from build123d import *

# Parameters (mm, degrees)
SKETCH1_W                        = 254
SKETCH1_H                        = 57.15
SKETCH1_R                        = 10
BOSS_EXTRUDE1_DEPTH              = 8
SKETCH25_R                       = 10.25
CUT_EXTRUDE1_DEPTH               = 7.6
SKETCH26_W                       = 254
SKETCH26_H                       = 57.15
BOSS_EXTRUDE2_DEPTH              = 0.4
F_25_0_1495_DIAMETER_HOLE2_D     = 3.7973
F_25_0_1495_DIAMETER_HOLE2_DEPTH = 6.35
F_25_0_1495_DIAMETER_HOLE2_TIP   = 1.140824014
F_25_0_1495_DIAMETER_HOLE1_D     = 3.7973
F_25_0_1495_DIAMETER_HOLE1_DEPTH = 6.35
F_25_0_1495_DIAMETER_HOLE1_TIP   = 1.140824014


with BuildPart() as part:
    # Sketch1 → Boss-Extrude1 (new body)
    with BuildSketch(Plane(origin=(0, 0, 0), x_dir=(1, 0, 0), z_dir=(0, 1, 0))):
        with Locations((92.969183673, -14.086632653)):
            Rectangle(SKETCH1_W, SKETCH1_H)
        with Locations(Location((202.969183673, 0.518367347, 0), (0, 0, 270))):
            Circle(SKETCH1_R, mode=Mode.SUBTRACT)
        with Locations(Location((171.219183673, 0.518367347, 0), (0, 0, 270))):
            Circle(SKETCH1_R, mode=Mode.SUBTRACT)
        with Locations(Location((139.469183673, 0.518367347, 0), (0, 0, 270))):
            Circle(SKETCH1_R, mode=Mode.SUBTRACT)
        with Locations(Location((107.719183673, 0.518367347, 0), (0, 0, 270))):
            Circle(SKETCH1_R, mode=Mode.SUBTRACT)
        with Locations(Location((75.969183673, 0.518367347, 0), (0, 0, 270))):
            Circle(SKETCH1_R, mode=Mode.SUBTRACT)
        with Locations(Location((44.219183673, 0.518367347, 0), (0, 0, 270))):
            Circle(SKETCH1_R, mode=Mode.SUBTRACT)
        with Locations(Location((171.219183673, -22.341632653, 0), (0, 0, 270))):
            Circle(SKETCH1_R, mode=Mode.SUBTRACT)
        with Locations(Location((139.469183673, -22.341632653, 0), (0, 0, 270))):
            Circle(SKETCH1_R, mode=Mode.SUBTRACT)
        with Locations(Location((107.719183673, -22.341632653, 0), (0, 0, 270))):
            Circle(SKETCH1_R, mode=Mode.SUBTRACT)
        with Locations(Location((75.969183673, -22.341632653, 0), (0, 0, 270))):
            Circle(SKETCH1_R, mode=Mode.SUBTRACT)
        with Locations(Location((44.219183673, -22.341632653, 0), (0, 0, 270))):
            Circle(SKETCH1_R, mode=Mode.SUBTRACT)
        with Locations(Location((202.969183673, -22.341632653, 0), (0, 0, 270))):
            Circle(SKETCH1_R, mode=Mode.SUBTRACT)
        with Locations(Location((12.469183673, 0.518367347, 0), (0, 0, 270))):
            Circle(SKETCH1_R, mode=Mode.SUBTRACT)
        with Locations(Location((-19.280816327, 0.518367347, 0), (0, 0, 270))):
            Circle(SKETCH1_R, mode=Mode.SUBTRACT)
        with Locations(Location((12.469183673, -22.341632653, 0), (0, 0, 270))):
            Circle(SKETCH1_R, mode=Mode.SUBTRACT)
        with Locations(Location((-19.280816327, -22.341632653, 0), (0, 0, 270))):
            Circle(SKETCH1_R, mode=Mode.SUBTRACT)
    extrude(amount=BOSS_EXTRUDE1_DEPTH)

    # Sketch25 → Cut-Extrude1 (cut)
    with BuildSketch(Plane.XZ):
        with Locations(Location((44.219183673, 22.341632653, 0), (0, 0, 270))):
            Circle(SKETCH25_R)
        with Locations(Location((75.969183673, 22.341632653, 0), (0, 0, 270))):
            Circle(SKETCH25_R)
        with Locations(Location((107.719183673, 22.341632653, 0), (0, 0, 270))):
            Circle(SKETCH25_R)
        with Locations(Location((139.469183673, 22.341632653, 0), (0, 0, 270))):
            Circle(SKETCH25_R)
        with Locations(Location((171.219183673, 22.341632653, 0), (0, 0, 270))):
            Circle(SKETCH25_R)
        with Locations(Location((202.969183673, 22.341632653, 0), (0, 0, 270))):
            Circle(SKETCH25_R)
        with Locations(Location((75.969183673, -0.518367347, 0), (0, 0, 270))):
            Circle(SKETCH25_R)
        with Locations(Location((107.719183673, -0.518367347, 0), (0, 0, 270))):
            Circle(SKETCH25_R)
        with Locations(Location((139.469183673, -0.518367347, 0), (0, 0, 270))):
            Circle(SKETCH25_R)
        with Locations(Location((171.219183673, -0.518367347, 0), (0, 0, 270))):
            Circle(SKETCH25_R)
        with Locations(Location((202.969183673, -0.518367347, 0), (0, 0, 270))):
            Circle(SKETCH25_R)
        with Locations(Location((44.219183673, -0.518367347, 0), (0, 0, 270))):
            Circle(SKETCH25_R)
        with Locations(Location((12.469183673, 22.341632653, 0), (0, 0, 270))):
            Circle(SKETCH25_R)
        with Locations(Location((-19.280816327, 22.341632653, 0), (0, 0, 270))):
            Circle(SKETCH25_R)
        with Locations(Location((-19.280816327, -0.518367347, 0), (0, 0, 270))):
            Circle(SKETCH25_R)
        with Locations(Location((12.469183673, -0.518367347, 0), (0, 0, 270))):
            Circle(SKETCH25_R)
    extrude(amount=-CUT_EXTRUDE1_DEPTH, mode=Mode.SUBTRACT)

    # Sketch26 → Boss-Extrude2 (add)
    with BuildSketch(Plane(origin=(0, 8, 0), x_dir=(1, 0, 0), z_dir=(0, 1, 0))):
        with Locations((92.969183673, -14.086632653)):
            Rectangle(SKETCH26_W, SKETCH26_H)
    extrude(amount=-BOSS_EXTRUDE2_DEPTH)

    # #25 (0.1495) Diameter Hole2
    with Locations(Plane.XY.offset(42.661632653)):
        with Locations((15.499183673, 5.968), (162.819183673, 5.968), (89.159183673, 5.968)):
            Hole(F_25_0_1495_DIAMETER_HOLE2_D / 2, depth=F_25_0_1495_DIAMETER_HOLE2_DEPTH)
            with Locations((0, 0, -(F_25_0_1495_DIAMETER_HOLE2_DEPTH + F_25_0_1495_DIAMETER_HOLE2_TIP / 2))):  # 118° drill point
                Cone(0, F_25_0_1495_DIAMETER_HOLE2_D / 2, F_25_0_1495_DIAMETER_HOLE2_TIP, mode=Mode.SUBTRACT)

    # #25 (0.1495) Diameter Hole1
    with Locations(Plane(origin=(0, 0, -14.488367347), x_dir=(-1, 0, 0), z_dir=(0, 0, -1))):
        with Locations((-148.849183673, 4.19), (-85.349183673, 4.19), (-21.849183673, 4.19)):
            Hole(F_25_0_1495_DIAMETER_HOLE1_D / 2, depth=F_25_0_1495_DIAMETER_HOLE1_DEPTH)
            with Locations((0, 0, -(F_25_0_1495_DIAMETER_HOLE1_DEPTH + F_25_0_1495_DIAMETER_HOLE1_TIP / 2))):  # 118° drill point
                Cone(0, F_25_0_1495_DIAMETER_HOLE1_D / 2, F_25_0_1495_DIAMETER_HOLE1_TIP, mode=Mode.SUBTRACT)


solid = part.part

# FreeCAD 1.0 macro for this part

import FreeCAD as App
import Part
import Sketcher

doc = App.newDocument("Part")
body = doc.addObject("PartDesign::Body", "Body")

sketch1 = body.newObject("Sketcher::SketchObject", "Sketch")
sketch1.AttachmentSupport = (doc.getObject("XZ_Plane"), [""])
sketch1.MapMode = "FlatFace"
sketch1.addGeometry([
    Part.LineSegment(App.Vector(-34, -14, 0), App.Vector(-34, 43, 0)),
    Part.LineSegment(App.Vector(-34, 43, 0), App.Vector(220, 43, 0)),
    Part.LineSegment(App.Vector(220, 43, 0), App.Vector(220, -14, 0)),
    Part.LineSegment(App.Vector(220, -14, 0), App.Vector(-34, -14, 0)),
    Part.Circle(App.Vector(-19, 22, 0), App.Vector(0, 0, 1), 10),
    Part.Circle(App.Vector(12, 22, 0), App.Vector(0, 0, 1), 10),
    Part.Circle(App.Vector(44, 22, 0), App.Vector(0, 0, 1), 10),
    Part.Circle(App.Vector(76, 22, 0), App.Vector(0, 0, 1), 10),
    Part.Circle(App.Vector(108, 22, 0), App.Vector(0, 0, 1), 10),
    Part.Circle(App.Vector(139, 22, 0), App.Vector(0, 0, 1), 10),
    Part.Circle(App.Vector(171, 22, 0), App.Vector(0, 0, 1), 10),
    Part.Circle(App.Vector(203, 22, 0), App.Vector(0, 0, 1), 10),
    Part.Circle(App.Vector(-19, -1, 0), App.Vector(0, 0, 1), 10),
    Part.Circle(App.Vector(12, -1, 0), App.Vector(0, 0, 1), 10),
    Part.Circle(App.Vector(44, -1, 0), App.Vector(0, 0, 1), 10),
    Part.Circle(App.Vector(76, -1, 0), App.Vector(0, 0, 1), 10),
    Part.Circle(App.Vector(108, -1, 0), App.Vector(0, 0, 1), 10),
    Part.Circle(App.Vector(139, -1, 0), App.Vector(0, 0, 1), 10),
    Part.Circle(App.Vector(171, -1, 0), App.Vector(0, 0, 1), 10),
    Part.Circle(App.Vector(203, -1, 0), App.Vector(0, 0, 1), 10),
], False)
sketch1.addConstraint([
    Sketcher.Constraint("Coincident", 0, 2, 1, 1),
    Sketcher.Constraint("Coincident", 1, 2, 2, 1),
    Sketcher.Constraint("Coincident", 2, 2, 3, 1),
    Sketcher.Constraint("Coincident", 3, 2, 0, 1),
    Sketcher.Constraint("Vertical", 0),
    Sketcher.Constraint("Horizontal", 1),
    Sketcher.Constraint("Vertical", 2),
    Sketcher.Constraint("Horizontal", 3),
    Sketcher.Constraint("Equal", 4, 5),
    Sketcher.Constraint("Equal", 5, 6),
    Sketcher.Constraint("Equal", 6, 7),
    Sketcher.Constraint("Equal", 7, 8),
    Sketcher.Constraint("Equal", 8, 9),
    Sketcher.Constraint("Equal", 9, 10),
    Sketcher.Constraint("Equal", 10, 11),
    Sketcher.Constraint("Equal", 11, 12),
    Sketcher.Constraint("Equal", 12, 13),
    Sketcher.Constraint("Equal", 13, 14),
    Sketcher.Constraint("Equal", 14, 15),
    Sketcher.Constraint("Equal", 15, 16),
    Sketcher.Constraint("Equal", 16, 17),
    Sketcher.Constraint("Equal", 17, 18),
    Sketcher.Constraint("Equal", 18, 19),
    Sketcher.Constraint("Horizontal", 4, 3, 5, 3),
    Sketcher.Constraint("Horizontal", 5, 3, 6, 3),
    Sketcher.Constraint("Horizontal", 6, 3, 7, 3),
    Sketcher.Constraint("Horizontal", 7, 3, 8, 3),
    Sketcher.Constraint("Horizontal", 8, 3, 9, 3),
    Sketcher.Constraint("Horizontal", 9, 3, 10, 3),
    Sketcher.Constraint("Horizontal", 10, 3, 11, 3),
    Sketcher.Constraint("Horizontal", 12, 3, 13, 3),
    Sketcher.Constraint("Horizontal", 13, 3, 14, 3),
    Sketcher.Constraint("Horizontal", 14, 3, 15, 3),
    Sketcher.Constraint("Horizontal", 15, 3, 16, 3),
    Sketcher.Constraint("Horizontal", 16, 3, 17, 3),
    Sketcher.Constraint("Horizontal", 17, 3, 18, 3),
    Sketcher.Constraint("Horizontal", 18, 3, 19, 3),
    Sketcher.Constraint("Vertical", 4, 3, 12, 3),
    Sketcher.Constraint("Vertical", 5, 3, 13, 3),
    Sketcher.Constraint("Vertical", 6, 3, 14, 3),
    Sketcher.Constraint("Vertical", 7, 3, 15, 3),
    Sketcher.Constraint("Vertical", 8, 3, 16, 3),
    Sketcher.Constraint("Vertical", 9, 3, 17, 3),
    Sketcher.Constraint("Vertical", 10, 3, 18, 3),
    Sketcher.Constraint("Vertical", 11, 3, 19, 3),
    Sketcher.Constraint("Diameter", 4, 20.0),
    Sketcher.Constraint("DistanceX", 1, 1, 1, 2, 254.0),
    Sketcher.Constraint("DistanceX", 4, 3, 8, 3, 127.0),
    Sketcher.Constraint("DistanceX", 5, 3, 9, 3, 127.0),
    Sketcher.Constraint("DistanceX", 6, 3, 10, 3, 127.0),
    Sketcher.Constraint("DistanceX", 7, 3, 11, 3, 127.0),
    Sketcher.Constraint("DistanceX", 11, 3, 1, 2, 17.0),
    Sketcher.Constraint("DistanceY", 0, 1, 0, 2, 57.15),
    Sketcher.Constraint("DistanceX", 4, 3, 6, 3, 63.5),
    Sketcher.Constraint("DistanceX", 5, 3, 7, 3, 63.5),
    Sketcher.Constraint("DistanceX", 4, 3, 5, 3, 31.75),
    Sketcher.Constraint("DistanceY", 12, 3, 4, 3, 22.86),
    Sketcher.Constraint("DistanceY", 4, 3, 0, 2, 20.32),
    Sketcher.Constraint("DistanceX", 4, 3, -1, 1, 19.280816),
    Sketcher.Constraint("DistanceY", -1, 1, 4, 3, 22.341633),
])
pad1 = body.newObject("PartDesign::Pad", "Pad")
pad1.Profile = sketch1
pad1.Length = 8
pad1.Reversed = True

sketch2 = body.newObject("Sketcher::SketchObject", "Sketch001")
sketch2.AttachmentSupport = (doc.getObject("XZ_Plane"), [""])
sketch2.MapMode = "FlatFace"
sketch2.addGeometry([
    Part.Circle(App.Vector(44, 22, 0), App.Vector(0, 0, 1), 10),
    Part.Circle(App.Vector(76, 22, 0), App.Vector(0, 0, 1), 10),
    Part.Circle(App.Vector(108, 22, 0), App.Vector(0, 0, 1), 10),
    Part.Circle(App.Vector(139, 22, 0), App.Vector(0, 0, 1), 10),
    Part.Circle(App.Vector(171, 22, 0), App.Vector(0, 0, 1), 10),
    Part.Circle(App.Vector(203, 22, 0), App.Vector(0, 0, 1), 10),
    Part.Circle(App.Vector(76, -1, 0), App.Vector(0, 0, 1), 10),
    Part.Circle(App.Vector(108, -1, 0), App.Vector(0, 0, 1), 10),
    Part.Circle(App.Vector(139, -1, 0), App.Vector(0, 0, 1), 10),
    Part.Circle(App.Vector(171, -1, 0), App.Vector(0, 0, 1), 10),
    Part.Circle(App.Vector(203, -1, 0), App.Vector(0, 0, 1), 10),
    Part.Circle(App.Vector(44, -1, 0), App.Vector(0, 0, 1), 10),
    Part.Circle(App.Vector(12, 22, 0), App.Vector(0, 0, 1), 10),
    Part.Circle(App.Vector(-19, 22, 0), App.Vector(0, 0, 1), 10),
    Part.Circle(App.Vector(-19, -1, 0), App.Vector(0, 0, 1), 10),
    Part.Circle(App.Vector(12, -1, 0), App.Vector(0, 0, 1), 10),
], False)
sketch2.addConstraint([
    Sketcher.Constraint("Equal", 0, 1),
    Sketcher.Constraint("Equal", 1, 2),
    Sketcher.Constraint("Equal", 2, 3),
    Sketcher.Constraint("Equal", 3, 4),
    Sketcher.Constraint("Equal", 4, 5),
    Sketcher.Constraint("Equal", 5, 6),
    Sketcher.Constraint("Equal", 6, 7),
    Sketcher.Constraint("Equal", 7, 8),
    Sketcher.Constraint("Equal", 8, 9),
    Sketcher.Constraint("Equal", 9, 10),
    Sketcher.Constraint("Equal", 10, 11),
    Sketcher.Constraint("Equal", 11, 12),
    Sketcher.Constraint("Equal", 12, 13),
    Sketcher.Constraint("Equal", 13, 14),
    Sketcher.Constraint("Equal", 14, 15),
    Sketcher.Constraint("Horizontal", 0, 3, 1, 3),
    Sketcher.Constraint("Horizontal", 1, 3, 2, 3),
    Sketcher.Constraint("Horizontal", 2, 3, 3, 3),
    Sketcher.Constraint("Horizontal", 3, 3, 4, 3),
    Sketcher.Constraint("Horizontal", 4, 3, 5, 3),
    Sketcher.Constraint("Horizontal", 6, 3, 7, 3),
    Sketcher.Constraint("Horizontal", 7, 3, 8, 3),
    Sketcher.Constraint("Horizontal", 8, 3, 9, 3),
    Sketcher.Constraint("Horizontal", 9, 3, 10, 3),
    Sketcher.Constraint("Horizontal", 10, 3, 11, 3),
    Sketcher.Constraint("Horizontal", 5, 3, 12, 3),
    Sketcher.Constraint("Horizontal", 12, 3, 13, 3),
    Sketcher.Constraint("Horizontal", 11, 3, 14, 3),
    Sketcher.Constraint("Horizontal", 14, 3, 15, 3),
    Sketcher.Constraint("Vertical", 1, 3, 6, 3),
    Sketcher.Constraint("Vertical", 2, 3, 7, 3),
    Sketcher.Constraint("Vertical", 3, 3, 8, 3),
    Sketcher.Constraint("Vertical", 4, 3, 9, 3),
    Sketcher.Constraint("Vertical", 5, 3, 10, 3),
    Sketcher.Constraint("Vertical", 0, 3, 11, 3),
    Sketcher.Constraint("Vertical", 13, 3, 14, 3),
    Sketcher.Constraint("Vertical", 12, 3, 15, 3),
    Sketcher.Constraint("Diameter", 0, 20.5),
    Sketcher.Constraint("DistanceX", 0, 3, 4, 3, 127.0),
    Sketcher.Constraint("DistanceX", 1, 3, 5, 3, 127.0),
    Sketcher.Constraint("DistanceX", 0, 3, 2, 3, 63.5),
    Sketcher.Constraint("DistanceX", 1, 3, 3, 3, 63.5),
    Sketcher.Constraint("DistanceX", 12, 3, 1, 3, 63.5),
    Sketcher.Constraint("DistanceX", 13, 3, 0, 3, 63.5),
    Sketcher.Constraint("DistanceX", 0, 3, 1, 3, 31.75),
    Sketcher.Constraint("DistanceY", 6, 3, 1, 3, 22.86),
    Sketcher.Constraint("DistanceX", -1, 1, 0, 3, 44.219184),
    Sketcher.Constraint("DistanceY", -1, 1, 0, 3, 22.341633),
])
pocket1 = body.newObject("PartDesign::Pocket", "Pocket")
pocket1.Profile = sketch2
pocket1.Length = 7.6

sketch3 = body.newObject("Sketcher::SketchObject", "Sketch002")
sketch3.AttachmentSupport = (doc.getObject("XZ_Plane"), [""])
sketch3.MapMode = "FlatFace"
sketch3.AttachmentOffset = App.Placement(App.Vector(0, 0, -8), App.Rotation())
sketch3.addGeometry([
    Part.LineSegment(App.Vector(-34, -14, 0), App.Vector(-34, 43, 0)),
    Part.LineSegment(App.Vector(-34, 43, 0), App.Vector(220, 43, 0)),
    Part.LineSegment(App.Vector(220, 43, 0), App.Vector(220, -14, 0)),
    Part.LineSegment(App.Vector(220, -14, 0), App.Vector(-34, -14, 0)),
], False)
sketch3.addConstraint([
    Sketcher.Constraint("Coincident", 0, 2, 1, 1),
    Sketcher.Constraint("Coincident", 1, 2, 2, 1),
    Sketcher.Constraint("Coincident", 2, 2, 3, 1),
    Sketcher.Constraint("Coincident", 3, 2, 0, 1),
    Sketcher.Constraint("Vertical", 0),
    Sketcher.Constraint("Horizontal", 1),
    Sketcher.Constraint("Vertical", 2),
    Sketcher.Constraint("Horizontal", 3),
    Sketcher.Constraint("DistanceX", 1, 1, 1, 2, 254.0),
    Sketcher.Constraint("DistanceY", 0, 1, 0, 2, 57.15),
    Sketcher.Constraint("DistanceX", 0, 2, -1, 1, 34.030816),
    Sketcher.Constraint("DistanceY", -1, 1, 0, 2, 42.661633),
])
pad2 = body.newObject("PartDesign::Pad", "Pad001")
pad2.Profile = sketch3
pad2.Length = 0.4

sketch4 = body.newObject("Sketcher::SketchObject", "Sketch003")
sketch4.AttachmentSupport = (doc.getObject("XY_Plane"), [""])
sketch4.MapMode = "FlatFace"
sketch4.AttachmentOffset = App.Placement(App.Vector(0, 0, 42.661633), App.Rotation())
sketch4.addGeometry([
    Part.Circle(App.Vector(15.5, 6, 0), App.Vector(0, 0, 1), 1.9),
    Part.Circle(App.Vector(162.8, 6, 0), App.Vector(0, 0, 1), 1.9),
    Part.Circle(App.Vector(89.2, 6, 0), App.Vector(0, 0, 1), 1.9),
], False)
sketch4.addConstraint([
    Sketcher.Constraint("Equal", 0, 1),
    Sketcher.Constraint("Equal", 1, 2),
    Sketcher.Constraint("Horizontal", 0, 3, 1, 3),
    Sketcher.Constraint("Horizontal", 1, 3, 2, 3),
    Sketcher.Constraint("Diameter", 0, 3.7973),
    Sketcher.Constraint("DistanceX", 0, 3, 1, 3, 147.32),
    Sketcher.Constraint("DistanceX", 0, 3, 2, 3, 73.66),
    Sketcher.Constraint("DistanceY", -1, 1, 0, 3, 5.968),
    Sketcher.Constraint("DistanceX", -1, 1, 0, 3, 15.499184),
])
doc.recompute()
hole = body.newObject("PartDesign::Hole", "Hole")
hole.Profile = sketch4
hole.ThreadType = "None"
hole.Diameter = 3.7973
hole.DepthType = "Dimension"
hole.Depth = 6.35
hole.DrillPoint = "Angled"
hole.DrillPointAngle = 118

sketch5 = body.newObject("Sketcher::SketchObject", "Sketch004")
sketch5.AttachmentSupport = (doc.getObject("XY_Plane"), [""])
sketch5.MapMode = "FlatFace"
sketch5.AttachmentOffset = App.Placement(App.Vector(0, 0, -14.488367), App.Rotation())
sketch5.addGeometry([
    Part.Circle(App.Vector(148.8, 4.2, 0), App.Vector(0, 0, 1), 1.9),
    Part.Circle(App.Vector(85.3, 4.2, 0), App.Vector(0, 0, 1), 1.9),
    Part.Circle(App.Vector(21.8, 4.2, 0), App.Vector(0, 0, 1), 1.9),
], False)
sketch5.addConstraint([
    Sketcher.Constraint("Equal", 0, 1),
    Sketcher.Constraint("Equal", 1, 2),
    Sketcher.Constraint("Horizontal", 0, 3, 1, 3),
    Sketcher.Constraint("Horizontal", 1, 3, 2, 3),
    Sketcher.Constraint("DistanceX", 2, 3, 0, 3, 127.0),
    Sketcher.Constraint("Diameter", 0, 3.7973),
    Sketcher.Constraint("DistanceX", 1, 3, 0, 3, 63.5),
    Sketcher.Constraint("DistanceY", -1, 1, 0, 3, 4.19),
    Sketcher.Constraint("DistanceX", -1, 1, 0, 3, 148.849184),
])
doc.recompute()
hole2 = body.newObject("PartDesign::Hole", "Hole001")
hole2.Profile = sketch5
hole2.ThreadType = "None"
hole2.Diameter = 3.7973
hole2.DepthType = "Dimension"
hole2.Depth = 6.35
hole2.DrillPoint = "Angled"
hole2.DrillPointAngle = 118
hole2.Reversed = True

doc.recompute()
